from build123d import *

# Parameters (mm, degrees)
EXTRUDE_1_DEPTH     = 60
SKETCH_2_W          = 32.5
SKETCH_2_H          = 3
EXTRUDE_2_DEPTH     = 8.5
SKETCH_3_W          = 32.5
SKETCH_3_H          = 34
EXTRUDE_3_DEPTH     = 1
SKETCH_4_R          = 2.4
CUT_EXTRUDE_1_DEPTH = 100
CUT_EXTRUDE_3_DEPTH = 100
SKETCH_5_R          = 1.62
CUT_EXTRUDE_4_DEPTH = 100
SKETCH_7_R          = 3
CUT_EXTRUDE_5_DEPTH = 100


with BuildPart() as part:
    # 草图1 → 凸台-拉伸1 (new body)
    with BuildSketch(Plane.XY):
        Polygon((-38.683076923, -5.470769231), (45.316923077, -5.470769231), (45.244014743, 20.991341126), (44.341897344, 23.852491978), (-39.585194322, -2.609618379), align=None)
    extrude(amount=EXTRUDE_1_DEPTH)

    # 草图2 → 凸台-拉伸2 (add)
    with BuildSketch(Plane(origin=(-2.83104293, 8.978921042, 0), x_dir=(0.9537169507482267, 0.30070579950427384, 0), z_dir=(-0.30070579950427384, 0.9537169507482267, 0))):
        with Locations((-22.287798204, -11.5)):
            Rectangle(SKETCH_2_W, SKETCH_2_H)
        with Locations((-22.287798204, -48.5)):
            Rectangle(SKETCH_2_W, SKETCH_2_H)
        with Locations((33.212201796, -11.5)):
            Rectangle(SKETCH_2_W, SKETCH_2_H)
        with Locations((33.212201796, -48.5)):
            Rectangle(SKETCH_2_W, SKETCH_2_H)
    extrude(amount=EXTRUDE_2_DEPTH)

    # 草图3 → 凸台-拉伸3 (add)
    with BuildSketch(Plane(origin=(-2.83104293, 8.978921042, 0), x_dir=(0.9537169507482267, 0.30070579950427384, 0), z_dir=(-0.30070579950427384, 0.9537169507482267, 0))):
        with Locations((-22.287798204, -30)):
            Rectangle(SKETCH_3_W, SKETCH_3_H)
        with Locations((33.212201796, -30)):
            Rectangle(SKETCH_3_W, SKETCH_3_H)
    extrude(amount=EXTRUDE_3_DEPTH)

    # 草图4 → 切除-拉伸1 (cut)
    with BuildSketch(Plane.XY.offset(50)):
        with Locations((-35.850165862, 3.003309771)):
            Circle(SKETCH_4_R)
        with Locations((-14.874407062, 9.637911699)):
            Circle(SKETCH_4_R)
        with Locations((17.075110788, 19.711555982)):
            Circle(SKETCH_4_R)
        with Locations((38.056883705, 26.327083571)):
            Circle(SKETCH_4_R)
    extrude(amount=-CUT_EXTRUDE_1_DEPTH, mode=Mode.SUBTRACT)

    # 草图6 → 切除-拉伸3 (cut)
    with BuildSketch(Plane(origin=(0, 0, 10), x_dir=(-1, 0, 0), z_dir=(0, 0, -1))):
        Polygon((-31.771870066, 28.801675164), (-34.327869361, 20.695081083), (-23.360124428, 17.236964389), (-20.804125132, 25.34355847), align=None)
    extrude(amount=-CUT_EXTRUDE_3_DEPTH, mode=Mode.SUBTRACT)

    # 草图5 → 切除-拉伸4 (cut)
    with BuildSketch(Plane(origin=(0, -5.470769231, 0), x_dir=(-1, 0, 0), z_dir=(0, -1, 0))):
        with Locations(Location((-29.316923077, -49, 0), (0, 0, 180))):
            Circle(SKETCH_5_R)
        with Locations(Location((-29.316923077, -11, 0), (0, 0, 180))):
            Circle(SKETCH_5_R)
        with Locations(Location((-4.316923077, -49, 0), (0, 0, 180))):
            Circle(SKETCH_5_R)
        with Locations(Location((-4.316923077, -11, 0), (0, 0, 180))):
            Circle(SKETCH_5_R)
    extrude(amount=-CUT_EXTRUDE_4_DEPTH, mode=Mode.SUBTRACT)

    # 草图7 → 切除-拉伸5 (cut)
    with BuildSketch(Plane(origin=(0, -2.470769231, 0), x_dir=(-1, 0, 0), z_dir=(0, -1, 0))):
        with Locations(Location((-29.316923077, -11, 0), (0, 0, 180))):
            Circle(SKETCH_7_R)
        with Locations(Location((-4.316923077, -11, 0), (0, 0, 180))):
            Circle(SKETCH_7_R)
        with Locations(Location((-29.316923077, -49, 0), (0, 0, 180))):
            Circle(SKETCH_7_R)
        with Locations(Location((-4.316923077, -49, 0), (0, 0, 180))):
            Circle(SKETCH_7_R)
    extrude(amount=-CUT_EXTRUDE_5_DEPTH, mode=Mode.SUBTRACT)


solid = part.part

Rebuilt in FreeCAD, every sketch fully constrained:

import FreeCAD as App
import Part
import Sketcher
from FreeCAD import Vector
Q = App.Units.Quantity


def add_polygon(sketch, points):
    """Adds a closed chain of lines whose ends are joined by coincident constraints."""
    first, n = sketch.GeometryCount, len(points)
    for a, b in zip(points, points[1:] + points[:1]):
        sketch.addGeometry(Part.LineSegment(App.Vector(*a, 0), App.Vector(*b, 0)), False)
    for i in range(n):
        sketch.addConstraint(Sketcher.Constraint("Coincident", first + i, 2, first + (i + 1) % n, 1))

doc = App.newDocument("Part")
body = doc.addObject("PartDesign::Body", "Body")

# Sketch on XY plane
sketch1 = doc.addObject("Sketcher::SketchObject", "Sketch")
body.addObject(sketch1)
sketch1.AttachmentSupport = (doc.XY_Plane, [""])
sketch1.MapMode = "FlatFace"
add_polygon(sketch1, [(-38.7, -5.5), (45.3, -5.5), (45.2, 21), (44.3, 23.9), (-39.6, -2.6)])  # lines 0-4
sketch1.addConstraint(Sketcher.Constraint("Horizontal", 0))
sketch1.addConstraint(Sketcher.Constraint("Perpendicular", 2, 3))
sketch1.addConstraint(Sketcher.Constraint("Perpendicular", 3, 4))
sketch1.addConstraint(Sketcher.Constraint("Equal", 2, 4))
sketch1.addConstraint(Sketcher.Constraint("DistanceX", 0, 1, 0, 2, 84.0))
sketch1.addConstraint(Sketcher.Constraint("Distance", 2, 3.0))
sketch1.addConstraint(Sketcher.Constraint("Distance", 3, 88.0))
sketch1.addConstraint(Sketcher.Constraint("Angle", 2, Q("107.5 deg")))
sketch1.addConstraint(Sketcher.Constraint("DistanceY", 0, 2, -1, 1, 5.470769))
sketch1.addConstraint(Sketcher.Constraint("DistanceX", -1, 1, 0, 2, 45.316923))
pad1 = doc.addObject("PartDesign::Pad", "Pad")
body.addObject(pad1)
pad1.Profile = sketch1
pad1.Length = 60

# Sketch on an angled plane
sketch2 = doc.addObject("Sketcher::SketchObject", "Sketch001")
body.addObject(sketch2)
sketch2.Placement = App.Placement(Vector(-2.831043, 8.978921, 0), App.Rotation(Vector(0.953716951, 0.3007058, 0), Vector(0, 0, -1.000000001), Vector(-0.3007058, 0.953716951, 0), "ZXY"))
add_polygon(sketch2, [(-38.5, -10), (-38.5, -13), (-6, -13), (-6, -10)])  # lines 0-3
add_polygon(sketch2, [(-38.5, -47), (-38.5, -50), (-6, -50), (-6, -47)])  # lines 4-7
add_polygon(sketch2, [(17, -10), (17, -13), (49.5, -13), (49.5, -10)])  # lines 8-11
add_polygon(sketch2, [(17, -47), (17, -50), (49.5, -50), (49.5, -47)])  # lines 12-15
sketch2.addConstraint(Sketcher.Constraint("Vertical", 0))
sketch2.addConstraint(Sketcher.Constraint("Horizontal", 1))
sketch2.addConstraint(Sketcher.Constraint("Vertical", 2))
sketch2.addConstraint(Sketcher.Constraint("Horizontal", 3))
sketch2.addConstraint(Sketcher.Constraint("Vertical", 4))
sketch2.addConstraint(Sketcher.Constraint("Horizontal", 5))
sketch2.addConstraint(Sketcher.Constraint("Vertical", 6))
sketch2.addConstraint(Sketcher.Constraint("Horizontal", 7))
sketch2.addConstraint(Sketcher.Constraint("Vertical", 8))
sketch2.addConstraint(Sketcher.Constraint("Horizontal", 9))
sketch2.addConstraint(Sketcher.Constraint("Vertical", 10))
sketch2.addConstraint(Sketcher.Constraint("Horizontal", 11))
sketch2.addConstraint(Sketcher.Constraint("Vertical", 12))
sketch2.addConstraint(Sketcher.Constraint("Horizontal", 13))
sketch2.addConstraint(Sketcher.Constraint("Vertical", 14))
sketch2.addConstraint(Sketcher.Constraint("Horizontal", 15))
sketch2.addConstraint(Sketcher.Constraint("Horizontal", 1, 2, 8, 2))
sketch2.addConstraint(Sketcher.Constraint("Horizontal", 3, 2, 10, 2))
sketch2.addConstraint(Sketcher.Constraint("Horizontal", 5, 2, 12, 2))
sketch2.addConstraint(Sketcher.Constraint("Horizontal", 7, 2, 14, 2))
sketch2.addConstraint(Sketcher.Constraint("Vertical", 3, 2, 4, 2))
sketch2.addConstraint(Sketcher.Constraint("Vertical", 2, 2, 5, 2))
sketch2.addConstraint(Sketcher.Constraint("Vertical", 11, 2, 12, 2))
sketch2.addConstraint(Sketcher.Constraint("Vertical", 10, 2, 13, 2))
sketch2.addConstraint(Sketcher.Constraint("Equal", 7, 9))
sketch2.addConstraint(Sketcher.Constraint("Equal", 2, 4))
sketch2.addConstraint(Sketcher.Constraint("DistanceY", 0, 2, 0, 1, 3.0))
sketch2.addConstraint(Sketcher.Constraint("DistanceX", 1, 1, 1, 2, 32.5))
sketch2.addConstraint(Sketcher.Constraint("DistanceY", 0, 2, -1, 1, 13.0))
sketch2.addConstraint(Sketcher.Constraint("DistanceY", 4, 2, -1, 1, 50.0))
sketch2.addConstraint(Sketcher.Constraint("DistanceX", 1, 2, 8, 2, 23.0))
sketch2.addConstraint(Sketcher.Constraint("DistanceX", 0, 2, -1, 1, 38.537798))
pad2 = doc.addObject("PartDesign::Pad", "Pad001")
body.addObject(pad2)
pad2.Profile = sketch2
pad2.Length = 8.5

# Sketch on an angled plane
sketch3 = doc.addObject("Sketcher::SketchObject", "Sketch002")
body.addObject(sketch3)
sketch3.Placement = App.Placement(Vector(-2.831043, 8.978921, 0), App.Rotation(Vector(0.953716951, 0.3007058, 0), Vector(0, 0, -1.000000001), Vector(-0.3007058, 0.953716951, 0), "ZXY"))
add_polygon(sketch3, [(-39, -13), (-39, -47), (-6, -47), (-6, -13)])  # lines 0-3
add_polygon(sketch3, [(17, -13), (17, -47), (49, -47), (49, -13)])  # lines 4-7
sketch3.addConstraint(Sketcher.Constraint("Vertical", 0))
sketch3.addConstraint(Sketcher.Constraint("Horizontal", 1))
sketch3.addConstraint(Sketcher.Constraint("Vertical", 2))
sketch3.addConstraint(Sketcher.Constraint("Horizontal", 3))
sketch3.addConstraint(Sketcher.Constraint("Vertical", 4))
sketch3.addConstraint(Sketcher.Constraint("Horizontal", 5))
sketch3.addConstraint(Sketcher.Constraint("Vertical", 6))
sketch3.addConstraint(Sketcher.Constraint("Horizontal", 7))
sketch3.addConstraint(Sketcher.Constraint("Horizontal", 1, 2, 4, 2))
sketch3.addConstraint(Sketcher.Constraint("Horizontal", 3, 2, 6, 2))
sketch3.addConstraint(Sketcher.Constraint("Equal", 3, 5))
sketch3.addConstraint(Sketcher.Constraint("DistanceY", 0, 2, 0, 1, 34.0))
sketch3.addConstraint(Sketcher.Constraint("DistanceX", 1, 1, 1, 2, 32.5))
sketch3.addConstraint(Sketcher.Constraint("DistanceY", 0, 2, -1, 1, 47.0))
sketch3.addConstraint(Sketcher.Constraint("DistanceX", 1, 2, 4, 2, 23.0))
sketch3.addConstraint(Sketcher.Constraint("DistanceX", 0, 2, -1, 1, 38.537798))
pad3 = doc.addObject("PartDesign::Pad", "Pad002")
body.addObject(pad3)
pad3.Profile = sketch3
pad3.Length = 1

# Sketch on XY plane
sketch4 = doc.addObject("Sketcher::SketchObject", "Sketch003")
body.addObject(sketch4)
sketch4.AttachmentSupport = (doc.XY_Plane, [""])
sketch4.MapMode = "FlatFace"
sketch4.AttachmentOffset = App.Placement(Vector(0, 0, 50), App.Rotation())
sketch4.addGeometry(Part.Circle(Vector(-35.9, 3, 0), Vector(0, 0, 1), 2.4), False)
sketch4.addGeometry(Part.Circle(Vector(-14.9, 9.6, 0), Vector(0, 0, 1), 2.4), False)
sketch4.addGeometry(Part.Circle(Vector(17.1, 19.7, 0), Vector(0, 0, 1), 2.4), False)
sketch4.addGeometry(Part.Circle(Vector(38.1, 26.3, 0), Vector(0, 0, 1), 2.4), False)
sketch4.addConstraint(Sketcher.Constraint("Equal", 0, 1))
sketch4.addConstraint(Sketcher.Constraint("Equal", 1, 2))
sketch4.addConstraint(Sketcher.Constraint("Equal", 2, 3))
sketch4.addConstraint(Sketcher.Constraint("Diameter", 0, 4.8))
sketch4.addConstraint(Sketcher.Constraint("DistanceY", 0, 3, 1, 3, 6.634602))
sketch4.addConstraint(Sketcher.Constraint("DistanceY", -1, 1, 0, 3, 3.00331))
sketch4.addConstraint(Sketcher.Constraint("DistanceX", -1, 1, 2, 3, 17.075111))
sketch4.addConstraint(Sketcher.Constraint("DistanceX", 0, 3, 1, 3, 20.975759))
sketch4.addConstraint(Sketcher.Constraint("DistanceX", 1, 3, 3, 3, 52.931291))
sketch4.addConstraint(Sketcher.Constraint("DistanceY", 1, 3, 3, 3, 16.689172))
sketch4.addConstraint(Sketcher.Constraint("DistanceX", 0, 3, -1, 1, 35.850166))
sketch4.addConstraint(Sketcher.Constraint("DistanceY", -1, 1, 2, 3, 19.711556))
pocket1 = doc.addObject("PartDesign::Pocket", "Pocket")
body.addObject(pocket1)
pocket1.Profile = sketch4
pocket1.Length = 100

# Sketch on XY plane
sketch5 = doc.addObject("Sketcher::SketchObject", "Sketch004")
body.addObject(sketch5)
sketch5.AttachmentSupport = (doc.XY_Plane, [""])
sketch5.MapMode = "FlatFace"
sketch5.AttachmentOffset = App.Placement(Vector(0, 0, 10), App.Rotation())
add_polygon(sketch5, [(32, 29), (34, 21), (23, 17), (21, 25)])  # lines 0-3
sketch5.addConstraint(Sketcher.Constraint("Perpendicular", 0, 1))
sketch5.addConstraint(Sketcher.Constraint("Perpendicular", 1, 2))
sketch5.addConstraint(Sketcher.Constraint("Perpendicular", 2, 3))
sketch5.addConstraint(Sketcher.Constraint("Angle", 0, Q("-72.5 deg")))
sketch5.addConstraint(Sketcher.Constraint("Distance", 0, 8.5))
sketch5.addConstraint(Sketcher.Constraint("Distance", 1, 11.5))
sketch5.addConstraint(Sketcher.Constraint("DistanceX", -1, 1, 0, 2, 34.327869))
sketch5.addConstraint(Sketcher.Constraint("DistanceY", -1, 1, 0, 2, 20.695081))
pocket2 = doc.addObject("PartDesign::Pocket", "Pocket001")
body.addObject(pocket2)
pocket2.Profile = sketch5
pocket2.Length = 100
pocket2.Reversed = True

# Sketch on XZ plane
sketch6 = doc.addObject("Sketcher::SketchObject", "Sketch005")
body.addObject(sketch6)
sketch6.AttachmentSupport = (doc.XZ_Plane, [""])
sketch6.MapMode = "FlatFace"
sketch6.AttachmentOffset = App.Placement(Vector(0, 0, 5.470769), App.Rotation())
sketch6.addGeometry(Part.Circle(Vector(29.3, 49, 0), Vector(0, 0, 1), 1.6), False)
sketch6.addGeometry(Part.Circle(Vector(29.3, 11, 0), Vector(0, 0, 1), 1.6), False)
sketch6.addGeometry(Part.Circle(Vector(4.3, 49, 0), Vector(0, 0, 1), 1.6), False)
sketch6.addGeometry(Part.Circle(Vector(4.3, 11, 0), Vector(0, 0, 1), 1.6), False)
sketch6.addConstraint(Sketcher.Constraint("Equal", 0, 1))
sketch6.addConstraint(Sketcher.Constraint("Equal", 1, 2))
sketch6.addConstraint(Sketcher.Constraint("Equal", 2, 3))
sketch6.addConstraint(Sketcher.Constraint("Horizontal", 0, 3, 2, 3))
sketch6.addConstraint(Sketcher.Constraint("Horizontal", 1, 3, 3, 3))
sketch6.addConstraint(Sketcher.Constraint("Vertical", 0, 3, 1, 3))
sketch6.addConstraint(Sketcher.Constraint("Vertical", 2, 3, 3, 3))
sketch6.addConstraint(Sketcher.Constraint("Diameter", 0, 3.24))
sketch6.addConstraint(Sketcher.Constraint("DistanceY", -1, 1, 0, 3, 49.0))
sketch6.addConstraint(Sketcher.Constraint("DistanceY", -1, 1, 1, 3, 11.0))
sketch6.addConstraint(Sketcher.Constraint("DistanceX", 2, 3, 0, 3, 25.0))
sketch6.addConstraint(Sketcher.Constraint("DistanceX", -1, 1, 0, 3, 29.316923))
pocket3 = doc.addObject("PartDesign::Pocket", "Pocket002")
body.addObject(pocket3)
pocket3.Profile = sketch6
pocket3.Length = 100

# Sketch on XZ plane
sketch7 = doc.addObject("Sketcher::SketchObject", "Sketch006")
body.addObject(sketch7)
sketch7.AttachmentSupport = (doc.XZ_Plane, [""])
sketch7.MapMode = "FlatFace"
sketch7.AttachmentOffset = App.Placement(Vector(0, 0, 2.470769), App.Rotation())
sketch7.addGeometry(Part.Circle(Vector(29.3, 11, 0), Vector(0, 0, 1), 3), False)
sketch7.addGeometry(Part.Circle(Vector(4.3, 11, 0), Vector(0, 0, 1), 3), False)
sketch7.addGeometry(Part.Circle(Vector(29.3, 49, 0), Vector(0, 0, 1), 3), False)
sketch7.addGeometry(Part.Circle(Vector(4.3, 49, 0), Vector(0, 0, 1), 3), False)
sketch7.addConstraint(Sketcher.Constraint("Equal", 0, 1))
sketch7.addConstraint(Sketcher.Constraint("Equal", 1, 2))
sketch7.addConstraint(Sketcher.Constraint("Equal", 2, 3))
sketch7.addConstraint(Sketcher.Constraint("Horizontal", 0, 3, 1, 3))
sketch7.addConstraint(Sketcher.Constraint("Horizontal", 2, 3, 3, 3))
sketch7.addConstraint(Sketcher.Constraint("Vertical", 0, 3, 2, 3))
sketch7.addConstraint(Sketcher.Constraint("Vertical", 1, 3, 3, 3))
sketch7.addConstraint(Sketcher.Constraint("Diameter", 0, 6.0))
sketch7.addConstraint(Sketcher.Constraint("DistanceY", -1, 1, 0, 3, 11.0))
sketch7.addConstraint(Sketcher.Constraint("DistanceY", -1, 1, 2, 3, 49.0))
sketch7.addConstraint(Sketcher.Constraint("DistanceX", 1, 3, 0, 3, 25.0))
sketch7.addConstraint(Sketcher.Constraint("DistanceX", -1, 1, 0, 3, 29.316923))
pocket4 = doc.addObject("PartDesign::Pocket", "Pocket003")
body.addObject(pocket4)
pocket4.Profile = sketch7
pocket4.Length = 100

doc.recompute()
